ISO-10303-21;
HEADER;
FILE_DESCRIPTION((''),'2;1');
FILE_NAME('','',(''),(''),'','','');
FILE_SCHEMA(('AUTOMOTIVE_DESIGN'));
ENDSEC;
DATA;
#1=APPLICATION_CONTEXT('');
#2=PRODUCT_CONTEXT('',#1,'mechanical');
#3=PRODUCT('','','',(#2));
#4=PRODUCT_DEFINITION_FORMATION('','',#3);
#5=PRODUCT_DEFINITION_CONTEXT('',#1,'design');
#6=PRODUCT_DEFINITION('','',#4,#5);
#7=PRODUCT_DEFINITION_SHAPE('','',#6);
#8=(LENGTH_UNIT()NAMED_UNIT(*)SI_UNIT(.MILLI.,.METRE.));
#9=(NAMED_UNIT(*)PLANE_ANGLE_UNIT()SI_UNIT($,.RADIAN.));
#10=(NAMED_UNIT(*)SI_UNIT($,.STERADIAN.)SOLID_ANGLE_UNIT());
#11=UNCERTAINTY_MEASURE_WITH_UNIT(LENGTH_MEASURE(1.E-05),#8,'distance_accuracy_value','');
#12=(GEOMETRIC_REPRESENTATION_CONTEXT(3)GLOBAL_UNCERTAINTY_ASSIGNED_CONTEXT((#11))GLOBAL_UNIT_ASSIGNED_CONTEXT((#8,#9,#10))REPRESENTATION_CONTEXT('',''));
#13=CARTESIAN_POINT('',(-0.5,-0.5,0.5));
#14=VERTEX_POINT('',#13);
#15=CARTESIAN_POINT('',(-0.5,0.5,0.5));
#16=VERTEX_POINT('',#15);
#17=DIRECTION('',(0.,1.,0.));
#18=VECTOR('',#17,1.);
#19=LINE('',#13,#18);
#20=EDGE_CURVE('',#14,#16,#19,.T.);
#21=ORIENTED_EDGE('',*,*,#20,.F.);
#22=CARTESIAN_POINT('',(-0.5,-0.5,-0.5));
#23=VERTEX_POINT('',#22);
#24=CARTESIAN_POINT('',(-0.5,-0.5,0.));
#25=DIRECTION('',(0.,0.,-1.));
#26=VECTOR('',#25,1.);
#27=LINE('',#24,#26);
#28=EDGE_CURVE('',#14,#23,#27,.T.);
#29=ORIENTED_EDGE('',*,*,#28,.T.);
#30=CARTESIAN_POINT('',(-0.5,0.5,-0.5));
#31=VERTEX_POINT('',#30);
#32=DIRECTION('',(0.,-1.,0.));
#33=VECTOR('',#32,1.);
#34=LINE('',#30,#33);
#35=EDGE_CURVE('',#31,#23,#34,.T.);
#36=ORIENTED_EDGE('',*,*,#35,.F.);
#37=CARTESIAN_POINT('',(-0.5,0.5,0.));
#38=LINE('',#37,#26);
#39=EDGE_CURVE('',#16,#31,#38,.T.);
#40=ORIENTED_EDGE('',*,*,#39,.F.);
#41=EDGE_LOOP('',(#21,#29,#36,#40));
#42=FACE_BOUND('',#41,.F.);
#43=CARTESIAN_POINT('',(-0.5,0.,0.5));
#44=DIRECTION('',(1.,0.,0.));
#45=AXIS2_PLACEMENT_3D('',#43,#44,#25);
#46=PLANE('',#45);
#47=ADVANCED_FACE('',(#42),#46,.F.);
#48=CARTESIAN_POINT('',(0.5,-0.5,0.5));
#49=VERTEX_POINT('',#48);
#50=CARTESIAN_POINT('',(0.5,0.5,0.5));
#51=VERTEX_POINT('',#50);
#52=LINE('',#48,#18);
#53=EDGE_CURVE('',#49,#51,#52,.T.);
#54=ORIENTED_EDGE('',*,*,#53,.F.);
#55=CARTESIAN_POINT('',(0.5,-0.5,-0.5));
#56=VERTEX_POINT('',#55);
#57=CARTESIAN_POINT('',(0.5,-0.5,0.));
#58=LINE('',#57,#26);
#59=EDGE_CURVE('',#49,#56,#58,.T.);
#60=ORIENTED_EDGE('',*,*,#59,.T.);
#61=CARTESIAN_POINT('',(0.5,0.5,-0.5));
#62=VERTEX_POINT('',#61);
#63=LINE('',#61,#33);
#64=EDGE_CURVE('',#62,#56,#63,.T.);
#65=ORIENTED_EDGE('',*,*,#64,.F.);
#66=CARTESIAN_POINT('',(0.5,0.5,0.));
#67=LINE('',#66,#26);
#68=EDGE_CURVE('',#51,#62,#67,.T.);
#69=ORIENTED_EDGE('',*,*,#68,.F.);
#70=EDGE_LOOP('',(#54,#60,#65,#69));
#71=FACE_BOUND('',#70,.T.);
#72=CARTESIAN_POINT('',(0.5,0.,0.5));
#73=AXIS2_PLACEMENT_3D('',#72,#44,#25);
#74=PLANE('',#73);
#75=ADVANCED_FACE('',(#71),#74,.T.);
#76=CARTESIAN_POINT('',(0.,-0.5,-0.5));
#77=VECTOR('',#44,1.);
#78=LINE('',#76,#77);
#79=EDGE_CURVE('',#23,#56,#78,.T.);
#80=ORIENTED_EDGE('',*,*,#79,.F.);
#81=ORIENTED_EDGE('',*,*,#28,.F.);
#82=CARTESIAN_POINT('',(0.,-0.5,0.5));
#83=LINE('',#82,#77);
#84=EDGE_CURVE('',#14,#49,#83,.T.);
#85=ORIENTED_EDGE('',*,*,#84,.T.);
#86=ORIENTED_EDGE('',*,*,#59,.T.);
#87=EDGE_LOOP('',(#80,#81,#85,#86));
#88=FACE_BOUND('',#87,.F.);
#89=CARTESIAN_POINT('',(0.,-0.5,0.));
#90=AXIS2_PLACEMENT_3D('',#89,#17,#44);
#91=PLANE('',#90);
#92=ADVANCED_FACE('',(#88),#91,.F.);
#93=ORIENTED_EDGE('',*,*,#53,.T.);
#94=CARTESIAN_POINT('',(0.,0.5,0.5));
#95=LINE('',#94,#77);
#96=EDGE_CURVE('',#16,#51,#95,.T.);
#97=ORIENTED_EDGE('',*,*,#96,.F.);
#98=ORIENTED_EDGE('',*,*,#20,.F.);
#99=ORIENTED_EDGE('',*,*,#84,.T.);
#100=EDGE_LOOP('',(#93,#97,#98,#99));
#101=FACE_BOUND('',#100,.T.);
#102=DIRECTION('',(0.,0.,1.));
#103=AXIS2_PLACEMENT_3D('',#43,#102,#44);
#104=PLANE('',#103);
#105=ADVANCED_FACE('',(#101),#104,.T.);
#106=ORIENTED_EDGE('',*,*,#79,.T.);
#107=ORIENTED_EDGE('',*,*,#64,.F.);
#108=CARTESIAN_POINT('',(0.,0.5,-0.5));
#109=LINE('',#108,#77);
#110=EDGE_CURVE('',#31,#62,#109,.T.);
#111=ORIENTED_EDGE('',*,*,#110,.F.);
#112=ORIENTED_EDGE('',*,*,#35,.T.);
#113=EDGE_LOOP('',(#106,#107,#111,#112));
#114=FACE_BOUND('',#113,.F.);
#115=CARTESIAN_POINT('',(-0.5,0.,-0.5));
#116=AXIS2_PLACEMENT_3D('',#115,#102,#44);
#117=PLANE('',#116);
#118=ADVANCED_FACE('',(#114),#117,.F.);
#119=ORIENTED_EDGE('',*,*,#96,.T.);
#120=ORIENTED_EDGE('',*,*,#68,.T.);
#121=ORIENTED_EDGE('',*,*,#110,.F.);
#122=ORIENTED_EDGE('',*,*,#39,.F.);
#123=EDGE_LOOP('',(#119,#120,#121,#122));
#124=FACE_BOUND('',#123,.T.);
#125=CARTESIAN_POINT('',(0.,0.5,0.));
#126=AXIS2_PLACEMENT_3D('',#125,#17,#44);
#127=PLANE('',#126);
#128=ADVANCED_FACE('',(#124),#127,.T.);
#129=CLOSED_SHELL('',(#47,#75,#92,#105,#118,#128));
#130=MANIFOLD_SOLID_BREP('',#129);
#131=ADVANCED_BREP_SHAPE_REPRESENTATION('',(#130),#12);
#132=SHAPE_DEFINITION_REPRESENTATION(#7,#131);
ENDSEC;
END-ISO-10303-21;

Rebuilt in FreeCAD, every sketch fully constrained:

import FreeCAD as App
import Part
import Sketcher
from FreeCAD import Vector


def add_polygon(sketch, points):
    """Adds a closed chain of lines whose ends are joined by coincident constraints."""
    first, n = sketch.GeometryCount, len(points)
    for a, b in zip(points, points[1:] + points[:1]):
        sketch.addGeometry(Part.LineSegment(App.Vector(*a, 0), App.Vector(*b, 0)), False)
    for i in range(n):
        sketch.addConstraint(Sketcher.Constraint("Coincident", first + i, 2, first + (i + 1) % n, 1))

doc = App.newDocument("Part")
body = doc.addObject("PartDesign::Body", "Body")

sketch1 = doc.addObject("Sketcher::SketchObject", "Sketch")
body.addObject(sketch1)
sketch1.AttachmentSupport = (doc.XZ_Plane, [""])
sketch1.MapMode = "FlatFace"
add_polygon(sketch1, [(-0.5, -0.5), (-0.5, 0.5), (0.5, 0.5), (0.5, -0.5)])
sketch1.addConstraint([
    Sketcher.Constraint("Vertical", 0),
    Sketcher.Constraint("Horizontal", 1),
    Sketcher.Constraint("Vertical", 2),
    Sketcher.Constraint("Horizontal", 3),
    Sketcher.Constraint("Symmetric", 0, 2, 2, 2, -1, 1),
    Sketcher.Constraint("Equal", 3, 0),
    Sketcher.Constraint("DistanceX", 1, 1, 1, 2, 1.0),
])
pad1 = doc.addObject("PartDesign::Pad", "Pad")
body.addObject(pad1)
pad1.Profile = sketch1
pad1.Length = 1
pad1.Midplane = True

doc.recompute()
